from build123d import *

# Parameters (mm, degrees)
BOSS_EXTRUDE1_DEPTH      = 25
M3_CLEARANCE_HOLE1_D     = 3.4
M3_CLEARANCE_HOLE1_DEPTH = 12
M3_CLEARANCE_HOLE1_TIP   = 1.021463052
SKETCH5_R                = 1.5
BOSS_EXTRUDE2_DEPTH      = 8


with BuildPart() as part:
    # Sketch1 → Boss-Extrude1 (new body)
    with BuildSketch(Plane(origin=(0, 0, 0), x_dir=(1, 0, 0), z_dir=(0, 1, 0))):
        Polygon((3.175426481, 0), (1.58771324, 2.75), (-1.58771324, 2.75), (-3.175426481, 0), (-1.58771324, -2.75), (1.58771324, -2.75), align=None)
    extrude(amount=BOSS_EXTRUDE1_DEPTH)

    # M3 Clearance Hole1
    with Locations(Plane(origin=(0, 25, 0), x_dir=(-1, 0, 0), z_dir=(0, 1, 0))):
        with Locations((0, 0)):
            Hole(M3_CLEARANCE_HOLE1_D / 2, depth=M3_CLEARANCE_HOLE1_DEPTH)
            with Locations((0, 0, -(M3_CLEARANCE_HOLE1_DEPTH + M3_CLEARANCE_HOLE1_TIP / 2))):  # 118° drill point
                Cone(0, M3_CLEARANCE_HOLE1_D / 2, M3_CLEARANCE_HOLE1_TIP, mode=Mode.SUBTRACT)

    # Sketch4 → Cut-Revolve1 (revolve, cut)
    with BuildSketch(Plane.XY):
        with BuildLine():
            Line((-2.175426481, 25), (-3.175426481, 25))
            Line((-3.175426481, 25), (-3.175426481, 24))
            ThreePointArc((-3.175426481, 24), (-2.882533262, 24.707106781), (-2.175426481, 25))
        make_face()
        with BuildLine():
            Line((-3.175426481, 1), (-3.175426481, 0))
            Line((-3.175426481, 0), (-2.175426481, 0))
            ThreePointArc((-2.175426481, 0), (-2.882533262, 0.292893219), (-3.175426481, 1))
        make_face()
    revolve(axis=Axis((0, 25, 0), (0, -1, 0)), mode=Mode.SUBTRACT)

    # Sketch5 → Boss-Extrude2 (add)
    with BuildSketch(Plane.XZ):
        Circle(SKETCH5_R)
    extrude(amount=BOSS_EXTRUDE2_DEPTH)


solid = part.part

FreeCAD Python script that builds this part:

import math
import FreeCAD as App
import Part
import Sketcher

V = App.Vector
Q = App.Units.Quantity

doc = App.newDocument("Part")
body = doc.addObject("PartDesign::Body", "Body")

sketch1 = body.newObject("Sketcher::SketchObject", "Sketch")
sketch1.AttachmentSupport = (doc.getObject("XZ_Plane"), [""])
sketch1.MapMode = "FlatFace"
sketch1.addGeometry([
    Part.LineSegment(V(3.175426, 0, 0), V(1.587713, -2.75, 0)),
    Part.LineSegment(V(1.587713, -2.75, 0), V(-1.587713, -2.75, 0)),
    Part.LineSegment(V(-1.587713, -2.75, 0), V(-3.175426, 0, 0)),
    Part.LineSegment(V(-3.175426, 0, 0), V(-1.587713, 2.75, 0)),
    Part.LineSegment(V(-1.587713, 2.75, 0), V(1.587713, 2.75, 0)),
    Part.LineSegment(V(1.587713, 2.75, 0), V(3.175426, 0, 0)),
], False)
sketch1.addConstraint([
    Sketcher.Constraint("Coincident", 0, 2, 1, 1),
    Sketcher.Constraint("Coincident", 1, 2, 2, 1),
    Sketcher.Constraint("Coincident", 2, 2, 3, 1),
    Sketcher.Constraint("Coincident", 3, 2, 4, 1),
    Sketcher.Constraint("Coincident", 4, 2, 5, 1),
    Sketcher.Constraint("Coincident", 5, 2, 0, 1),
    Sketcher.Constraint("Horizontal", 1),
    Sketcher.Constraint("Horizontal", 4),
    Sketcher.Constraint("Symmetric", 0, 2, 3, 2, -1, 1),
    Sketcher.Constraint("Symmetric", 2, 2, 5, 2, -1, 1),
    Sketcher.Constraint("PointOnObject", 2, 2, -1),
    Sketcher.Constraint("Parallel", 2, 5),
    Sketcher.Constraint("Vertical", 1, 2, 3, 2),
    Sketcher.Constraint("Angle", 0, Q("-120 deg")),
    Sketcher.Constraint("DistanceY", 1, 2, 3, 2, Q("5.5 mm")),
    Sketcher.Constraint("DistanceX", 1, 2, 1, 1, Q("3.175426 mm")),
])
pad1 = body.newObject("PartDesign::Pad", "Pad")
pad1.Profile = sketch1
pad1.Length = 25
pad1.Reversed = True

sketch2 = body.newObject("Sketcher::SketchObject", "Sketch001")
sketch2.AttachmentSupport = (doc.getObject("XZ_Plane"), [""])
sketch2.MapMode = "FlatFace"
sketch2.AttachmentOffset = App.Placement(V(0, 0, -25), App.Rotation())
sketch2.addGeometry(Part.Circle(V(0, 0, 0), V(0, 0, 1), 1.7), False)
sketch2.addConstraint([
    Sketcher.Constraint("Coincident", 0, 3, -1, 1),
    Sketcher.Constraint("Diameter", 0, Q("3.4 mm")),
])
doc.recompute()
hole = body.newObject("PartDesign::Hole", "Hole")
hole.Profile = sketch2
hole.ThreadType = "None"
hole.Diameter = 3.4
hole.DepthType = "Dimension"
hole.Depth = 12
hole.DrillPoint = "Angled"
hole.DrillPointAngle = 118
hole.Reversed = True

sketch3 = body.newObject("Sketcher::SketchObject", "Sketch002")
sketch3.AttachmentSupport = (doc.getObject("XY_Plane"), [""])
sketch3.MapMode = "FlatFace"
sketch3.addGeometry([
    Part.LineSegment(V(-2.175426, 25, 0), V(-3.175426, 25, 0)),
    Part.LineSegment(V(-3.175426, 25, 0), V(-3.175426, 24, 0)),
    Part.ArcOfCircle(Part.Circle(V(-2.175426, 24, 0), V(0, 0, 1), 1), math.radians(90), math.radians(180)),
    Part.LineSegment(V(-3.175426, 1, 0), V(-3.175426, 0, 0)),
    Part.LineSegment(V(-3.175426, 0, 0), V(-2.175426, 0, 0)),
    Part.ArcOfCircle(Part.Circle(V(-2.175426, 1, 0), V(0, 0, 1), 1), math.radians(-180), math.radians(-90)),
], False)
sketch3.addConstraint([
    Sketcher.Constraint("Coincident", 0, 2, 1, 1),
    Sketcher.Constraint("Tangent", 1, 2, 2, 2),
    Sketcher.Constraint("Tangent", 2, 1, 0, 1),
    Sketcher.Constraint("Coincident", 3, 2, 4, 1),
    Sketcher.Constraint("Tangent", 4, 2, 5, 2),
    Sketcher.Constraint("Tangent", 5, 1, 3, 1),
    Sketcher.Constraint("Horizontal", 0),
    Sketcher.Constraint("Vertical", 1),
    Sketcher.Constraint("Vertical", 3),
    Sketcher.Constraint("Horizontal", 4),
    Sketcher.Constraint("Equal", 2, 5),
    Sketcher.Constraint("PointOnObject", 3, 2, -1),
    Sketcher.Constraint("Vertical", 2, 3, 5, 3),
    Sketcher.Constraint("Radius", 2, Q("1 mm")),
    Sketcher.Constraint("DistanceY", -1, 1, 2, 3, Q("24 mm")),
    Sketcher.Constraint("DistanceX", 2, 3, -1, 1, Q("2.175426 mm")),
])
groove = body.newObject("PartDesign::Groove", "Groove")
groove.Profile = sketch3
groove.ReferenceAxis = (sketch3, ["V_Axis"])
groove.Angle = 360

sketch4 = body.newObject("Sketcher::SketchObject", "Sketch003")
sketch4.AttachmentSupport = (doc.getObject("XZ_Plane"), [""])
sketch4.MapMode = "FlatFace"
sketch4.addGeometry(Part.Circle(V(0, 0, 0), V(0, 0, 1), 1.5), False)
sketch4.addConstraint([
    Sketcher.Constraint("Coincident", 0, 3, -1, 1),
    Sketcher.Constraint("Diameter", 0, Q("3 mm")),
])
pad2 = body.newObject("PartDesign::Pad", "Pad001")
pad2.Profile = sketch4
pad2.Length = 8

doc.recompute()
